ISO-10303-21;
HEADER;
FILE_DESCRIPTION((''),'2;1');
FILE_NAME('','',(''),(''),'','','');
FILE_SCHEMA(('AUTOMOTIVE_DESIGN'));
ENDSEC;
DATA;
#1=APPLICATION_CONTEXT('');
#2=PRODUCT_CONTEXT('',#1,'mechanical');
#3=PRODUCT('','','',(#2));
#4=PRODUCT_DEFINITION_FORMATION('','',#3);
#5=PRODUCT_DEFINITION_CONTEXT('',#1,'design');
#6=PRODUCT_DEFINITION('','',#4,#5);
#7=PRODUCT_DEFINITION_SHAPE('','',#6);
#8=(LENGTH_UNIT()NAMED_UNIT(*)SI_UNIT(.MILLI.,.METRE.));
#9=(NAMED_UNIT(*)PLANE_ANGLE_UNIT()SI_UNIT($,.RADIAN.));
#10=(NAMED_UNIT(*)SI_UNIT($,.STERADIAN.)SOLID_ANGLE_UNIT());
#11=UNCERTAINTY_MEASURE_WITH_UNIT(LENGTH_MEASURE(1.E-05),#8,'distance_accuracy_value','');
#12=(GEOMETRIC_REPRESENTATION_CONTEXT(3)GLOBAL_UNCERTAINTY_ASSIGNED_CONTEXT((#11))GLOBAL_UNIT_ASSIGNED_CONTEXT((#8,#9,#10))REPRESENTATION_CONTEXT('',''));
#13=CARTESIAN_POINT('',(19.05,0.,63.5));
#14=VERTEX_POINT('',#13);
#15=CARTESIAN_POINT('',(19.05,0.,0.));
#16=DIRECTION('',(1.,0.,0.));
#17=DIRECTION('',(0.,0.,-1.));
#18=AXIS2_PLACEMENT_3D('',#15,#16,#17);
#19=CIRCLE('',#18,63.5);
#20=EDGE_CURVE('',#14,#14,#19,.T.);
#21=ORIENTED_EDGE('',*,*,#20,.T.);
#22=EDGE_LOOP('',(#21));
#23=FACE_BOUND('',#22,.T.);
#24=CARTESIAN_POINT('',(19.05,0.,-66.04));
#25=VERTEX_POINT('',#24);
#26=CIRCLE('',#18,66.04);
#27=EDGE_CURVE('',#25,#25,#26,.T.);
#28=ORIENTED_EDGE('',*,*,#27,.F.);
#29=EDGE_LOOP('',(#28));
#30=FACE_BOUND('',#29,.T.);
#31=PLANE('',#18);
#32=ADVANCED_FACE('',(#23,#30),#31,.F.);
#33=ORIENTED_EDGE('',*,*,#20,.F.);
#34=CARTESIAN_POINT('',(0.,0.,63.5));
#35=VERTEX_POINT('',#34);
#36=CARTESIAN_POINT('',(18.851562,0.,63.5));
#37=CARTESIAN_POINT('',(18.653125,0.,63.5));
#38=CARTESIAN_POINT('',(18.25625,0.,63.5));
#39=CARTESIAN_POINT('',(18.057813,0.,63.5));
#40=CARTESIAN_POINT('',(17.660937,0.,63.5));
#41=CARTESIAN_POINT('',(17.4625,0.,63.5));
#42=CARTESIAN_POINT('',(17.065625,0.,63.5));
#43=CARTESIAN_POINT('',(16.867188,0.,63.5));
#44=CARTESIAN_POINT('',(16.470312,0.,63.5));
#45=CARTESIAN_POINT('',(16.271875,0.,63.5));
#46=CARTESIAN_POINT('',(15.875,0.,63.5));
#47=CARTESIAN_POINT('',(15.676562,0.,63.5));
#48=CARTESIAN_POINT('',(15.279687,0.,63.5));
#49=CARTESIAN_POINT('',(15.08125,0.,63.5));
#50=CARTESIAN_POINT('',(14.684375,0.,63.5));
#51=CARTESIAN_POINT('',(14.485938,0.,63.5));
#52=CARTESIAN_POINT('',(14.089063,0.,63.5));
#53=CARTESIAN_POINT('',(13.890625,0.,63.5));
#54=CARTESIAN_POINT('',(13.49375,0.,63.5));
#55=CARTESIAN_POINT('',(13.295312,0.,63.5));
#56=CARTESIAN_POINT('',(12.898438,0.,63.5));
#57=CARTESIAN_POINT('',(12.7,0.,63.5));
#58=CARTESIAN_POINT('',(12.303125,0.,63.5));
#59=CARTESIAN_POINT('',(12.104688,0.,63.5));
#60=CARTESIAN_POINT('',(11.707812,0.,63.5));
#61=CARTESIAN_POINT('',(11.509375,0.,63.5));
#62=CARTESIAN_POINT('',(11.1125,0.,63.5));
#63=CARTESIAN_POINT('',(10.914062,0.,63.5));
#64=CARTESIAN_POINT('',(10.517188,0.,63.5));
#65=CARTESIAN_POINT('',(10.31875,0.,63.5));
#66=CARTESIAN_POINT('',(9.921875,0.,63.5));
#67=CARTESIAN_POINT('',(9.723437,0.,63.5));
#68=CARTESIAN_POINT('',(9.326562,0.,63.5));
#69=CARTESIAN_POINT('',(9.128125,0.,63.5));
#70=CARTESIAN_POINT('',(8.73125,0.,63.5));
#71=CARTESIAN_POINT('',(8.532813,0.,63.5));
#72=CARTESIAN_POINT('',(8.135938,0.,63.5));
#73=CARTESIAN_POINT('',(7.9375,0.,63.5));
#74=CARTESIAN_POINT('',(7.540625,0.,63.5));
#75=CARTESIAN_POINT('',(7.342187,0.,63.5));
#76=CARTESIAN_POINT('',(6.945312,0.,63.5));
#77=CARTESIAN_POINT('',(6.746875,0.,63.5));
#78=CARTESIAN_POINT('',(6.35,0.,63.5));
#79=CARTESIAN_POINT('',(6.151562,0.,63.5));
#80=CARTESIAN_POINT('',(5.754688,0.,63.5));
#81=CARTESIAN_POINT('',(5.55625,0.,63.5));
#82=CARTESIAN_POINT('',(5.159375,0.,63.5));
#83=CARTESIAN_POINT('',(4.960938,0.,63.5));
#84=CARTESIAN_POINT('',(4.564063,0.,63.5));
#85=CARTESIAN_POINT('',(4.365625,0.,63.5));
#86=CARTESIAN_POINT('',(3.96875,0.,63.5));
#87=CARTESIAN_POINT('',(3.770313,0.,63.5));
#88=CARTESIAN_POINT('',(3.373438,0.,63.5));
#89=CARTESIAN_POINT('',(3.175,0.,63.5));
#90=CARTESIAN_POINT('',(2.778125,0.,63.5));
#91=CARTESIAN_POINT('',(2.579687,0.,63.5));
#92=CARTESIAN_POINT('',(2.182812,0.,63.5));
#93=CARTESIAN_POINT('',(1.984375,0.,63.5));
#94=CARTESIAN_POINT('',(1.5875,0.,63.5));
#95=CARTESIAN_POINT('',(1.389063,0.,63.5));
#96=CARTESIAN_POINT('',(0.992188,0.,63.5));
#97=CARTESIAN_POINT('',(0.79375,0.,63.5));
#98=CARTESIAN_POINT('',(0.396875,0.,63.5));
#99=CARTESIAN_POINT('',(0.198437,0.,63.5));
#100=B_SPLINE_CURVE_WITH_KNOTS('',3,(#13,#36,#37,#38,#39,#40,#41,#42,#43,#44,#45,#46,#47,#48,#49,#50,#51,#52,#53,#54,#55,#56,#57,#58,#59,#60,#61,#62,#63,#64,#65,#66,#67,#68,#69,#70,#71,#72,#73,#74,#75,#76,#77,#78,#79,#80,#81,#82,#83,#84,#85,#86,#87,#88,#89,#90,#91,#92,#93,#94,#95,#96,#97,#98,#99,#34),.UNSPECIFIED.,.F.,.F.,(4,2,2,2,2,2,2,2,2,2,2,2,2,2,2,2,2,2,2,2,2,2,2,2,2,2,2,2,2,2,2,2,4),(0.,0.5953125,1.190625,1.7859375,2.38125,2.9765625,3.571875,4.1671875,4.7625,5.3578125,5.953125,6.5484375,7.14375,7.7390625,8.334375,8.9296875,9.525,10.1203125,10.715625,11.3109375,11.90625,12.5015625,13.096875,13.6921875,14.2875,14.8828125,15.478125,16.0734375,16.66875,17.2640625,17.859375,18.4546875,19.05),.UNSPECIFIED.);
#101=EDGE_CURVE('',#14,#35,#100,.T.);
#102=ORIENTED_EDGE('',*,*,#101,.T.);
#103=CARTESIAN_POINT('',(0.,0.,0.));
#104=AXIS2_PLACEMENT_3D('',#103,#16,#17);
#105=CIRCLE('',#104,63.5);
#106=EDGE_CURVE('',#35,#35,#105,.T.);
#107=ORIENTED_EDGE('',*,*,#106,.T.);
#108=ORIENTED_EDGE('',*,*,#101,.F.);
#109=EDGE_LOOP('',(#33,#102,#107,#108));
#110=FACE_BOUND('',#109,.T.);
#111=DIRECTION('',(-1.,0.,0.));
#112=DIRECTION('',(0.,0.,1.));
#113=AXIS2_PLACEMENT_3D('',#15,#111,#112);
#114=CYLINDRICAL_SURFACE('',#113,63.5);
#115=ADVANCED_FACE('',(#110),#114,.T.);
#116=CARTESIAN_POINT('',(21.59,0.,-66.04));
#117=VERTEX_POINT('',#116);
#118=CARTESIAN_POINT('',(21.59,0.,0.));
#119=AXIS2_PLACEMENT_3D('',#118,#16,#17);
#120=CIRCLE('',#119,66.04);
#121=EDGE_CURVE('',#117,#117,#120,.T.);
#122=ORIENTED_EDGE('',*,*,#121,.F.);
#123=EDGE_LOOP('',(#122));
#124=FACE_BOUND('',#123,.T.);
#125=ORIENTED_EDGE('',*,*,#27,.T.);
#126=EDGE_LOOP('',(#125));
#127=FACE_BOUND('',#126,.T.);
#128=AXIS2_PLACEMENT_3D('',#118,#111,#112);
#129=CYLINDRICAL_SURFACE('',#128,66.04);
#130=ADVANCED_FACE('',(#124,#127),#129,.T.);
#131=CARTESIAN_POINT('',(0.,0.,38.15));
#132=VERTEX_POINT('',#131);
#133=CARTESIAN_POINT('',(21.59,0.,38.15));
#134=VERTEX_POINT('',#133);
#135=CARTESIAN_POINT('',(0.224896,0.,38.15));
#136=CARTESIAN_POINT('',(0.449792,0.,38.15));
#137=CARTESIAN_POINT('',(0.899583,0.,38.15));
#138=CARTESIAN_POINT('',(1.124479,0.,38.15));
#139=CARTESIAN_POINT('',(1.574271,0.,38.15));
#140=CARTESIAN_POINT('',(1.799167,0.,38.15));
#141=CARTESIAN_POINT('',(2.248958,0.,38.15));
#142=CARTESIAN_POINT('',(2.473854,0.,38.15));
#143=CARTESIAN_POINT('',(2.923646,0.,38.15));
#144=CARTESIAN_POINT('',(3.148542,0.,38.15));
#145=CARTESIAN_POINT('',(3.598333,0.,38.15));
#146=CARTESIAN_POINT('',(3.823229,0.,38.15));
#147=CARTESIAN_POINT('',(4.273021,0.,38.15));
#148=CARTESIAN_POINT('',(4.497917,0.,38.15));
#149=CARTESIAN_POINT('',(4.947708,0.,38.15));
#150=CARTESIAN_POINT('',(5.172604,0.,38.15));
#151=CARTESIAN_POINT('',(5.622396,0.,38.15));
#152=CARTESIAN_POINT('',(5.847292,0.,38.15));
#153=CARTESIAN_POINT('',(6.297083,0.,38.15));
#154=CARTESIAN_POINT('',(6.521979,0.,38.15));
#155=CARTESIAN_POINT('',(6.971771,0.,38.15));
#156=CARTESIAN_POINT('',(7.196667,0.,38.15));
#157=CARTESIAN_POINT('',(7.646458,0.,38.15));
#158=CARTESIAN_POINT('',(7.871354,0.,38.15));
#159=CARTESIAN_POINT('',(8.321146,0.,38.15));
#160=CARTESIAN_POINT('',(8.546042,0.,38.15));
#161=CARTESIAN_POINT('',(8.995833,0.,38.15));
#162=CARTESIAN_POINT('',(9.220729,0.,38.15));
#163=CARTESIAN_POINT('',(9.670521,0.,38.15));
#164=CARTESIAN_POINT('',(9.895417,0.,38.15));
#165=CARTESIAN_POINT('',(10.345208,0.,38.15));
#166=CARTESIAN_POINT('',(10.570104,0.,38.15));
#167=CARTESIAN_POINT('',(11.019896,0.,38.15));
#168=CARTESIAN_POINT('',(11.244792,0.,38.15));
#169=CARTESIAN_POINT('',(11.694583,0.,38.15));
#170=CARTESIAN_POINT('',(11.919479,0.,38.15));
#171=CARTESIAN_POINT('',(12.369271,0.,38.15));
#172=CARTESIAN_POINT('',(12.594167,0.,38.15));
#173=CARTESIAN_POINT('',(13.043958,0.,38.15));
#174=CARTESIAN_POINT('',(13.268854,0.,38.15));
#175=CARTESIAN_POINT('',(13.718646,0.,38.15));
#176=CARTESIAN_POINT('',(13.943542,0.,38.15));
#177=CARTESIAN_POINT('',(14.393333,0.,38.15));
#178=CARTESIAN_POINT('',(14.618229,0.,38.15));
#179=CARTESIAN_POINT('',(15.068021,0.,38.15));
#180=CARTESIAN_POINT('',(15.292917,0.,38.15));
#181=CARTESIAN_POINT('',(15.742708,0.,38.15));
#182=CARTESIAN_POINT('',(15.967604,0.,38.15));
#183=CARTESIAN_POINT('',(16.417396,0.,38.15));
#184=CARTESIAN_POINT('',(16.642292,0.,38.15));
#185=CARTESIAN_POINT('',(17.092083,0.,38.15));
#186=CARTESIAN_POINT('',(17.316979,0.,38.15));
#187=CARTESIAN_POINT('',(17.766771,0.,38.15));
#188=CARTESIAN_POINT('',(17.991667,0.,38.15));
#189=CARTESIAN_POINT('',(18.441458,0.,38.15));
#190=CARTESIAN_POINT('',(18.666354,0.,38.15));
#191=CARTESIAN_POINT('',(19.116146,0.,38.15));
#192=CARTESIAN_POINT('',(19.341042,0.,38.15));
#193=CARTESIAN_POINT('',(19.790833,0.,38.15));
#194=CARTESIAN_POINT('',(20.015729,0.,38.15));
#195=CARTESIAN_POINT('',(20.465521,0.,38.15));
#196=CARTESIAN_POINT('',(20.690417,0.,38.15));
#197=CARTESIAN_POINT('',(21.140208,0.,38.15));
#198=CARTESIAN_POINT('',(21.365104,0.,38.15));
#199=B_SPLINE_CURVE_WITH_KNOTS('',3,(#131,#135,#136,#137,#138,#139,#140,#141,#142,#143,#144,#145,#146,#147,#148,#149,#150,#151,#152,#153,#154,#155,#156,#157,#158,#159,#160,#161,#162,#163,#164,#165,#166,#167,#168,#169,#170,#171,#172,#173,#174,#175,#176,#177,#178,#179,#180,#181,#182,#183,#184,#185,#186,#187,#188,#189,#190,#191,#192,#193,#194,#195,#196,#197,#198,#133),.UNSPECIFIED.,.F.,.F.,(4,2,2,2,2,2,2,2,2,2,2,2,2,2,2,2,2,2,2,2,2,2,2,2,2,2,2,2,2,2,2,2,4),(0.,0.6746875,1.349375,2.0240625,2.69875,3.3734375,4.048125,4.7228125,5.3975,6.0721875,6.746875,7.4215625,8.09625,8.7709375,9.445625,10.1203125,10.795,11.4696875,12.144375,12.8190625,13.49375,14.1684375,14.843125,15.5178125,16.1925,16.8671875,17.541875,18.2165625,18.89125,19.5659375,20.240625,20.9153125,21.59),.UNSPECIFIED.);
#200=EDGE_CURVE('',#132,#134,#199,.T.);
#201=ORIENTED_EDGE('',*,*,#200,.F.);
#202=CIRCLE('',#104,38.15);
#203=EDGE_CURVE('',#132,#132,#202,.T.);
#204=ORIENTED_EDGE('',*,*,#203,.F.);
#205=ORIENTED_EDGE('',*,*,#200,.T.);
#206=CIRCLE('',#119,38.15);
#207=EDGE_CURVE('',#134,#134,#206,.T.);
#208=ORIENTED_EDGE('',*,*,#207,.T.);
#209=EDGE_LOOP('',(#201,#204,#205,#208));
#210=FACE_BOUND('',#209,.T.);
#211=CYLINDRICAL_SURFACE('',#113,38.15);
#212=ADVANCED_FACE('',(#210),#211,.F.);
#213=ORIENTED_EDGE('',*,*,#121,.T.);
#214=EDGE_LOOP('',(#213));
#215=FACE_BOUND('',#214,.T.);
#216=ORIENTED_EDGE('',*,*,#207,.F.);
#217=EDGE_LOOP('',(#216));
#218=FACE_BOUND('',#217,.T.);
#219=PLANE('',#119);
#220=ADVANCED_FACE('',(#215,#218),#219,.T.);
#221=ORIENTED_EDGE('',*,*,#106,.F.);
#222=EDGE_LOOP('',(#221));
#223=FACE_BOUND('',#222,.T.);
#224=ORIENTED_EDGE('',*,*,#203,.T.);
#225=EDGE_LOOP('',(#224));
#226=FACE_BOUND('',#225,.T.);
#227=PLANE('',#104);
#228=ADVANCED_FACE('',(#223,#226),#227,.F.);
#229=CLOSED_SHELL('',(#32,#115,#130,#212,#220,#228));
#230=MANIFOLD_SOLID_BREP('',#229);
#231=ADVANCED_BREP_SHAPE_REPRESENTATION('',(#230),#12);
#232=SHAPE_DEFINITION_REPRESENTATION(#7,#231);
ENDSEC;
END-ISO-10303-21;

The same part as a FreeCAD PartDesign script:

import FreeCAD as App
import Part
import Sketcher

V = App.Vector
Q = App.Units.Quantity

doc = App.newDocument("Part")
body = doc.addObject("PartDesign::Body", "Body")

sketch1 = body.newObject("Sketcher::SketchObject", "Sketch")
sketch1.AttachmentSupport = (doc.getObject("YZ_Plane"), [""])
sketch1.MapMode = "FlatFace"
sketch1.addGeometry([
    Part.Circle(V(0, 0, 0), V(0, 0, 1), 64),
    Part.Circle(V(0, 0, 0), V(0, 0, 1), 38),
], False)
sketch1.addConstraint([
    Sketcher.Constraint("Coincident", 0, 3, -1, 1),
    Sketcher.Constraint("Coincident", 1, 3, -1, 1),
    Sketcher.Constraint("Diameter", 0, Q("5 in")),
    Sketcher.Constraint("Diameter", 1, 76.3),
])
pad1 = body.newObject("PartDesign::Pad", "Pad")
pad1.Profile = sketch1
pad1.Length = Q("0.75 in")

sketch2 = body.newObject("Sketcher::SketchObject", "Sketch001")
sketch2.AttachmentSupport = (doc.getObject("YZ_Plane"), [""])
sketch2.MapMode = "FlatFace"
sketch2.AttachmentOffset = App.Placement(V(0, 0, 0.75 * 25.4), App.Rotation())
sketch2.addGeometry([
    Part.Circle(V(0, 0, 0), V(0, 0, 1), 66),
    Part.Circle(V(0, 0, 0), V(0, 0, 1), 38),
], False)
sketch2.addConstraint([
    Sketcher.Constraint("Coincident", 0, 3, -1, 1),
    Sketcher.Constraint("Coincident", 1, 3, -1, 1),
    Sketcher.Constraint("Diameter", 0, Q("5.2 in")),
    Sketcher.Constraint("Diameter", 1, 76.3),
])
pad2 = body.newObject("PartDesign::Pad", "Pad001")
pad2.Profile = sketch2
pad2.Length = Q("0.1 in")

doc.recompute()
